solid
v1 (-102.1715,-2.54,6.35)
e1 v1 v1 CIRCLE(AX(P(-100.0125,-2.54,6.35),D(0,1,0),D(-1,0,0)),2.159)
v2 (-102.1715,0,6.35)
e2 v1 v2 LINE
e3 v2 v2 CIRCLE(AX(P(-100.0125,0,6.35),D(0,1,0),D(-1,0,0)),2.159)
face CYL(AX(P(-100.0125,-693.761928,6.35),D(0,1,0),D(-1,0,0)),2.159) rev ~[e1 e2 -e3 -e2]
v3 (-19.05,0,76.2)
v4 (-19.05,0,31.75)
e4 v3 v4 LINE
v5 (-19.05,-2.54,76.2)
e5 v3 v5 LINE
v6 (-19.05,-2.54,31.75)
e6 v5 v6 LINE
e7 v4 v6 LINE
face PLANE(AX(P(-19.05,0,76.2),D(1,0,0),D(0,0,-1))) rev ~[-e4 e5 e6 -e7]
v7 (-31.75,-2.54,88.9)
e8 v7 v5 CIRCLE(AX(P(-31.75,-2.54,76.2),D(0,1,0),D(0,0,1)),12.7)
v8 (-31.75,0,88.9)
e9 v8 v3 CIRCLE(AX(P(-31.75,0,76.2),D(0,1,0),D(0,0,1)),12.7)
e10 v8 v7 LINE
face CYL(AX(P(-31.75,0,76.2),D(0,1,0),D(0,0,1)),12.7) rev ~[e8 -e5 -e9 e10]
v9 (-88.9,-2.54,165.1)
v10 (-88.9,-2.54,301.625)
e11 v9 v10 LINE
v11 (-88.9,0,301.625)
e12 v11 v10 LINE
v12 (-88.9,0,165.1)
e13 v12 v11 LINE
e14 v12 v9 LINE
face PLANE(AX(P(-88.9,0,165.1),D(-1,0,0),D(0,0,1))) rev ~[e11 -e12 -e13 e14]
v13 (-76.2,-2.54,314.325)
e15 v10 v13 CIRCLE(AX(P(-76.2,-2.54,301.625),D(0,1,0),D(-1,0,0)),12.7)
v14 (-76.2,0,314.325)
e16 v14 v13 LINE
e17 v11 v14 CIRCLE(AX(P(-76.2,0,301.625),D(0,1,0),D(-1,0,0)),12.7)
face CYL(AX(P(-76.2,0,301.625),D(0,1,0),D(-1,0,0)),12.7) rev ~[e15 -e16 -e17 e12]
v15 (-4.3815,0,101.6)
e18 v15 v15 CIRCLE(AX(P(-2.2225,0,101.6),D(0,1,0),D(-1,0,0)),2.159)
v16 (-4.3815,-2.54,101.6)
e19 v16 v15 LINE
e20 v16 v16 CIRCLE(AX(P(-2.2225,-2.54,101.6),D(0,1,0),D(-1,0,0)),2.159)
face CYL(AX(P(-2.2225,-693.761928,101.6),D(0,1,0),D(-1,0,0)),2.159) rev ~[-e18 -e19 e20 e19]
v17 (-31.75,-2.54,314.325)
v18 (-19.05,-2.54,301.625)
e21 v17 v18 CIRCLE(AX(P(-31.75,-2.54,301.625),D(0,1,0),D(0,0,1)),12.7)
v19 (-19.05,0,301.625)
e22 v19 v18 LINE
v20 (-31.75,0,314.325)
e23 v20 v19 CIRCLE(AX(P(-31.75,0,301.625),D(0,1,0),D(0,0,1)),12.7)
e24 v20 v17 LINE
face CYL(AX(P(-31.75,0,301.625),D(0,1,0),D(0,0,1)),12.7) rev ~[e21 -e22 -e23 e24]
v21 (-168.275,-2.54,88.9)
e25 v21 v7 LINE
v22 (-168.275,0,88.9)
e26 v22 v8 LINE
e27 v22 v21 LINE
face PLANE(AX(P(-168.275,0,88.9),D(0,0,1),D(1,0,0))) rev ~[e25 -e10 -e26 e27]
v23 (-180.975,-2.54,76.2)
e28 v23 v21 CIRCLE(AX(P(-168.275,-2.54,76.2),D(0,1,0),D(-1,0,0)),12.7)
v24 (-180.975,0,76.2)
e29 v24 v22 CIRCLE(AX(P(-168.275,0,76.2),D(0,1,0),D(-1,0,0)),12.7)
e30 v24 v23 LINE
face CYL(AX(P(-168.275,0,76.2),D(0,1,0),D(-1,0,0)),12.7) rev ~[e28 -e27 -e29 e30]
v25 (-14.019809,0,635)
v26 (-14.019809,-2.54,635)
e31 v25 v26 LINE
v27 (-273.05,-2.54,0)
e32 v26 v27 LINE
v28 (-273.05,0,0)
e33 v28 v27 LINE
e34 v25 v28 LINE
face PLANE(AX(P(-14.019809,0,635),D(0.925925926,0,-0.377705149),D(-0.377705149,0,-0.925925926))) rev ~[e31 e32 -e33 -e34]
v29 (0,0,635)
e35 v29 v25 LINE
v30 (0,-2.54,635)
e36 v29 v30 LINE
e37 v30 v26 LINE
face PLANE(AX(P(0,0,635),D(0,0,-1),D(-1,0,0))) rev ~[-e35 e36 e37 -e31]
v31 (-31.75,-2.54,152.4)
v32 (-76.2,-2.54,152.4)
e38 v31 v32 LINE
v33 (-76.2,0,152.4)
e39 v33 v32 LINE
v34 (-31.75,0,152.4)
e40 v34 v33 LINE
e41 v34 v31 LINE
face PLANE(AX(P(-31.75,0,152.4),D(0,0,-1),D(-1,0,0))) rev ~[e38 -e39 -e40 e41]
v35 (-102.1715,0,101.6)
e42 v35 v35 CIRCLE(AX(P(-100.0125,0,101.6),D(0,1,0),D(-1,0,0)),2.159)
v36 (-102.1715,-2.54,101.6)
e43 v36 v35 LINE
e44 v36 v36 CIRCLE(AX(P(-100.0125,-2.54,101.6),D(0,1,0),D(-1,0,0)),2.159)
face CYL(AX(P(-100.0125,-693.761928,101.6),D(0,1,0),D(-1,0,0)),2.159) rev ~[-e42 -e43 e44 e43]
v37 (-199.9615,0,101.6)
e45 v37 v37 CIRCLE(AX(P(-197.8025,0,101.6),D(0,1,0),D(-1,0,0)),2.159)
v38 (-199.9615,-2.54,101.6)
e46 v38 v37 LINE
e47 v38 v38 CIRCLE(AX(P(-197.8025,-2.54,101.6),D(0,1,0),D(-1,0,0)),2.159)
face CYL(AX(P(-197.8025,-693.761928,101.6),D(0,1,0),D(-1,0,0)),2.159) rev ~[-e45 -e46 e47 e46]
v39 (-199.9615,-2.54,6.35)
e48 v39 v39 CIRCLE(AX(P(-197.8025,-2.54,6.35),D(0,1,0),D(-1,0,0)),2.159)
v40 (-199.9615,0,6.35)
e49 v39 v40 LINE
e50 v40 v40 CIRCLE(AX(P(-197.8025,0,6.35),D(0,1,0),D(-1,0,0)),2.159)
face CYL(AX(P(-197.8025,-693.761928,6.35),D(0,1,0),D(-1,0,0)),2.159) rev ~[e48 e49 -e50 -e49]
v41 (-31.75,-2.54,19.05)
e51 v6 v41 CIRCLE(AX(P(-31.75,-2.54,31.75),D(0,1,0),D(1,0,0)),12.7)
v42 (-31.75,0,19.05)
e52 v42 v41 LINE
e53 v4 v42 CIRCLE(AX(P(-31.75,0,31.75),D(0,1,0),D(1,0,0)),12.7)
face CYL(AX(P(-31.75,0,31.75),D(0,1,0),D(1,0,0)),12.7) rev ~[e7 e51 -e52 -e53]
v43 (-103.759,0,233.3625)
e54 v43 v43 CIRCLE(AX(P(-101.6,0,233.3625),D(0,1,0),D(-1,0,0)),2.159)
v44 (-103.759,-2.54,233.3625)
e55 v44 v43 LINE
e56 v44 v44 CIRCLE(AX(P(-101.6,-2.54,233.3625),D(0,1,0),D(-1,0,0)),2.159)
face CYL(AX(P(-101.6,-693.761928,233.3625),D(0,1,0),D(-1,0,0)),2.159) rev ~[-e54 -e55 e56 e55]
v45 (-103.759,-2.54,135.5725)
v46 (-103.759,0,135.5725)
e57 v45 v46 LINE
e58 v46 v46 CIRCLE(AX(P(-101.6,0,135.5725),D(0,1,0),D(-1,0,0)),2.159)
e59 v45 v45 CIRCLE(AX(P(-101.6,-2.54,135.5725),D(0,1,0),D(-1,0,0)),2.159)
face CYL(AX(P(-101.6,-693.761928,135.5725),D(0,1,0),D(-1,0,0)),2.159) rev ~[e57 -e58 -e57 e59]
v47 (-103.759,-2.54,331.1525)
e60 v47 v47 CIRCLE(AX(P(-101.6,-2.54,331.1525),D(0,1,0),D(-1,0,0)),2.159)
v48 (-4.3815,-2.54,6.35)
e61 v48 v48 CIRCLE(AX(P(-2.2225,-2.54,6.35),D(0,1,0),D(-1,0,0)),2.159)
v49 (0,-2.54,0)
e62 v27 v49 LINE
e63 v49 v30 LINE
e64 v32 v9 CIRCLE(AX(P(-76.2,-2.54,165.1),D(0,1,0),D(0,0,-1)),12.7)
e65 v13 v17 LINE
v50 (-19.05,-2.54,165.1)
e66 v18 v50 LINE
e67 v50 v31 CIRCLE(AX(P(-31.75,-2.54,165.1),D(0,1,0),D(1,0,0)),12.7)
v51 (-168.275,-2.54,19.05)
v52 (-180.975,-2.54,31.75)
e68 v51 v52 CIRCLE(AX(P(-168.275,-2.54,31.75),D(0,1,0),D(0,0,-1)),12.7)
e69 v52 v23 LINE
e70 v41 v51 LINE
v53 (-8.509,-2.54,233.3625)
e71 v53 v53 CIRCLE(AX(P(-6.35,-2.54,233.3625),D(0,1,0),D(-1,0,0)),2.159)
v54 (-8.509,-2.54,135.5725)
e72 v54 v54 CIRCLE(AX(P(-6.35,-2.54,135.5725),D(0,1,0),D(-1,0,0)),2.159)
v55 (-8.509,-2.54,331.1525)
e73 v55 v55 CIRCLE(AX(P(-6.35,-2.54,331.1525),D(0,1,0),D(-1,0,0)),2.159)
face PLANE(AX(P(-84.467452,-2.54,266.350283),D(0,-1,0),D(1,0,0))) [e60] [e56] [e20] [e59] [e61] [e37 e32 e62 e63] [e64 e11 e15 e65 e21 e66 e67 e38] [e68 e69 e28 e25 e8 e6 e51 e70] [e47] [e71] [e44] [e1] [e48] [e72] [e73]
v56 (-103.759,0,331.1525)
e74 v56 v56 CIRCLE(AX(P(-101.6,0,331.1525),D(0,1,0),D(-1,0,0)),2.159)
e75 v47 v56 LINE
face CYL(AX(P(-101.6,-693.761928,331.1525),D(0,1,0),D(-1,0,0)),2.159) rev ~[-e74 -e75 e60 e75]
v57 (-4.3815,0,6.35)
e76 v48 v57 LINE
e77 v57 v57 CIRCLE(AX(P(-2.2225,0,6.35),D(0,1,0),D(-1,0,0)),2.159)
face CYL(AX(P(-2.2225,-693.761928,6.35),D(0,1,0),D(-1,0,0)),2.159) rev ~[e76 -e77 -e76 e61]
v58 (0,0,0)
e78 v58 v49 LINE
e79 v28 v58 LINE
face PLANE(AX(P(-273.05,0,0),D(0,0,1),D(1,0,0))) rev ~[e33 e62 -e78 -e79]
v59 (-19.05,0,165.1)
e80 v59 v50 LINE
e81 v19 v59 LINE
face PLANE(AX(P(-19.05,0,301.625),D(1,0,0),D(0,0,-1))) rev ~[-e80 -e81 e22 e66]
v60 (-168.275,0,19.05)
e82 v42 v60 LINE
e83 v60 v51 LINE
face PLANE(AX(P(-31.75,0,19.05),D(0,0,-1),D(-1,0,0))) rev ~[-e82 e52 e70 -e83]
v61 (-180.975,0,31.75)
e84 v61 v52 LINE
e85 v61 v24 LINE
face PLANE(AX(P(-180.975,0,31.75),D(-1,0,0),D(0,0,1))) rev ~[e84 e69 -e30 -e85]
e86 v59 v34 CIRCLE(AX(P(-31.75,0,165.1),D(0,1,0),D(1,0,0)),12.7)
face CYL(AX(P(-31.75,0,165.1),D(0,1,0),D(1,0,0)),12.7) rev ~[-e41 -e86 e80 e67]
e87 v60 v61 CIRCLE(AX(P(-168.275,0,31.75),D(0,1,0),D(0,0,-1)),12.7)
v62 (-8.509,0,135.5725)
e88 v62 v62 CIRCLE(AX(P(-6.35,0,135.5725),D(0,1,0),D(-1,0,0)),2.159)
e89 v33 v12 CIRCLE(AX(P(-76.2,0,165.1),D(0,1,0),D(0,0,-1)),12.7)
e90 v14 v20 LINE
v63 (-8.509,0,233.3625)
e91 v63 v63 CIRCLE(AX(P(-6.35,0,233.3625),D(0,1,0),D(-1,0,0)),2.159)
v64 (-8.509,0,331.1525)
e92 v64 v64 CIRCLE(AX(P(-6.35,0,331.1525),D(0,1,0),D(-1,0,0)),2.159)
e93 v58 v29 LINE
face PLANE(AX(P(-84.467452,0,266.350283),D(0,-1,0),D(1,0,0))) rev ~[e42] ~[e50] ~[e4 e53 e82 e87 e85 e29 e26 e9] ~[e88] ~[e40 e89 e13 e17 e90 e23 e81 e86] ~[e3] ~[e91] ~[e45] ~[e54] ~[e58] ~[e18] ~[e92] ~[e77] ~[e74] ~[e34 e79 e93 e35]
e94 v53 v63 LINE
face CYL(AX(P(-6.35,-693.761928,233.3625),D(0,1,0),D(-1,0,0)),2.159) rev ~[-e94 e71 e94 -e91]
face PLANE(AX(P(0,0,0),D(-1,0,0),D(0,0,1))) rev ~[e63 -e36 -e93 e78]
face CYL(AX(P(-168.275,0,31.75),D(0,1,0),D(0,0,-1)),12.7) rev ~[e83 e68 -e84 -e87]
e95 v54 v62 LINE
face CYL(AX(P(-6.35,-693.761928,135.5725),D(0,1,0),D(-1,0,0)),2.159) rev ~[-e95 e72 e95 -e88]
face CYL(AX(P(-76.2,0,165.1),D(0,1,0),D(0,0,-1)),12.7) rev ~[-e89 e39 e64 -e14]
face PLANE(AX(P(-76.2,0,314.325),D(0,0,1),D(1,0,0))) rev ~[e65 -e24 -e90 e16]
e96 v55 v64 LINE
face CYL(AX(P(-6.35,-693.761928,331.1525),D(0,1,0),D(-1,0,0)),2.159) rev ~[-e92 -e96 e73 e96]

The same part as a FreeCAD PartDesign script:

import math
import FreeCAD as App
import Part
import Sketcher
Q = App.Units.Quantity


def add_polygon(sketch, points):
    """Adds a closed chain of lines whose ends are joined by coincident constraints."""
    first, n = sketch.GeometryCount, len(points)
    for a, b in zip(points, points[1:] + points[:1]):
        sketch.addGeometry(Part.LineSegment(App.Vector(*a, 0), App.Vector(*b, 0)), False)
    for i in range(n):
        sketch.addConstraint(Sketcher.Constraint("Coincident", first + i, 2, first + (i + 1) % n, 1))

doc = App.newDocument("Part")
params = doc.addObject("Spreadsheet::Sheet", "Params")
for row, (alias, value) in enumerate([
    ("sketch1_radius", "0.5 in"),
    ("sketch1_height", "25 in"),
    ("sketch1_length", "27 in"),
    ("sketch1_width", "10.75 in"),
    ("sketch1_width2", "1.75 in"),
    ("pad1_length", "0.1 in"),
    ("sketch2_diameter", "0.17 in"),
    ("hole_diameter", "0.17 in"),
], start=1):
    params.set(f"A{row}", alias)
    params.set(f"B{row}", "=" + value)
    params.setAlias(f"B{row}", alias)

body = doc.addObject("PartDesign::Body", "Body")

sketch1 = doc.addObject("Sketcher::SketchObject", "Sketch")
body.addObject(sketch1)
sketch1.AttachmentSupport = (doc.XZ_Plane, [""])
sketch1.MapMode = "FlatFace"
add_polygon(sketch1, [(-273, 0), (0, 0), (0, 635), (-14, 635)])
sketch1.addGeometry(Part.LineSegment(App.Vector(-32, 19, 0), App.Vector(-168, 19, 0)), False)
sketch1.addGeometry(Part.ArcOfCircle(Part.Circle(App.Vector(-168, 32, 0), App.Vector(0, 0, 1), 13), math.radians(180), math.radians(270)), False)
sketch1.addGeometry(Part.LineSegment(App.Vector(-181, 32, 0), App.Vector(-181, 76, 0)), False)
sketch1.addGeometry(Part.ArcOfCircle(Part.Circle(App.Vector(-168, 76, 0), App.Vector(0, 0, 1), 13), math.radians(90), math.radians(180)), False)
sketch1.addGeometry(Part.LineSegment(App.Vector(-168, 89, 0), App.Vector(-32, 89, 0)), False)
sketch1.addGeometry(Part.ArcOfCircle(Part.Circle(App.Vector(-32, 76, 0), App.Vector(0, 0, 1), 13), math.radians(0), math.radians(90)), False)
sketch1.addGeometry(Part.LineSegment(App.Vector(-19, 76, 0), App.Vector(-19, 32, 0)), False)
sketch1.addGeometry(Part.ArcOfCircle(Part.Circle(App.Vector(-32, 32, 0), App.Vector(0, 0, 1), 13), math.radians(-90), math.radians(0)), False)
sketch1.addGeometry(Part.LineSegment(App.Vector(-32, 152, 0), App.Vector(-76, 152, 0)), False)
sketch1.addGeometry(Part.ArcOfCircle(Part.Circle(App.Vector(-76, 165, 0), App.Vector(0, 0, 1), 13), math.radians(180), math.radians(270)), False)
sketch1.addGeometry(Part.LineSegment(App.Vector(-89, 165, 0), App.Vector(-89, 302, 0)), False)
sketch1.addGeometry(Part.ArcOfCircle(Part.Circle(App.Vector(-76, 302, 0), App.Vector(0, 0, 1), 13), math.radians(90), math.radians(180)), False)
sketch1.addGeometry(Part.LineSegment(App.Vector(-76, 314, 0), App.Vector(-32, 314, 0)), False)
sketch1.addGeometry(Part.ArcOfCircle(Part.Circle(App.Vector(-32, 302, 0), App.Vector(0, 0, 1), 13), math.radians(0), math.radians(90)), False)
sketch1.addGeometry(Part.LineSegment(App.Vector(-19, 302, 0), App.Vector(-19, 165, 0)), False)
sketch1.addGeometry(Part.ArcOfCircle(Part.Circle(App.Vector(-32, 165, 0), App.Vector(0, 0, 1), 13), math.radians(-90), math.radians(0)), False)
sketch1.addConstraint([
    Sketcher.Constraint("Tangent", 4, 2, 5, 2),
    Sketcher.Constraint("Tangent", 5, 1, 6, 1),
    Sketcher.Constraint("Tangent", 6, 2, 7, 2),
    Sketcher.Constraint("Tangent", 7, 1, 8, 1),
    Sketcher.Constraint("Tangent", 8, 2, 9, 2),
    Sketcher.Constraint("Tangent", 9, 1, 10, 1),
    Sketcher.Constraint("Tangent", 10, 2, 11, 2),
    Sketcher.Constraint("Tangent", 11, 1, 4, 1),
    Sketcher.Constraint("Tangent", 12, 2, 13, 2),
    Sketcher.Constraint("Tangent", 13, 1, 14, 1),
    Sketcher.Constraint("Tangent", 14, 2, 15, 2),
    Sketcher.Constraint("Tangent", 15, 1, 16, 1),
    Sketcher.Constraint("Tangent", 16, 2, 17, 2),
    Sketcher.Constraint("Tangent", 17, 1, 18, 1),
    Sketcher.Constraint("Tangent", 18, 2, 19, 2),
    Sketcher.Constraint("Tangent", 19, 1, 12, 1),
    Sketcher.Constraint("Horizontal", 0),
    Sketcher.Constraint("Vertical", 1),
    Sketcher.Constraint("Horizontal", 2),
    Sketcher.Constraint("Horizontal", 4),
    Sketcher.Constraint("Vertical", 6),
    Sketcher.Constraint("Horizontal", 8),
    Sketcher.Constraint("Vertical", 10),
    Sketcher.Constraint("Horizontal", 12),
    Sketcher.Constraint("Vertical", 14),
    Sketcher.Constraint("Horizontal", 16),
    Sketcher.Constraint("Vertical", 18),
    Sketcher.Constraint("Coincident", 0, 2, -1, 1),
    Sketcher.Constraint("Equal", 5, 7),
    Sketcher.Constraint("Equal", 7, 9),
    Sketcher.Constraint("Equal", 9, 11),
    Sketcher.Constraint("Equal", 11, 13),
    Sketcher.Constraint("Equal", 13, 15),
    Sketcher.Constraint("Equal", 15, 17),
    Sketcher.Constraint("Equal", 17, 19),
    Sketcher.Constraint("Vertical", 11, 3, 17, 3),
    Sketcher.Constraint("Equal", 16, 6),
    Sketcher.Constraint("Equal", 8, 14),
    Sketcher.Constraint("Radius", 5, Q("0.5 in")),
    Sketcher.Constraint("DistanceY", 1, 1, 1, 2, Q("25 in")),
    Sketcher.Constraint("Distance", 3, Q("27 in")),
    Sketcher.Constraint("DistanceY", -1, 1, 7, 3, Q("3 in")),
    Sketcher.Constraint("DistanceX", 13, 3, -1, 1, Q("3 in")),
    Sketcher.Constraint("DistanceY", -1, 1, 12, 2, Q("6 in")),
    Sketcher.Constraint("DistanceX", 0, 1, 0, 2, Q("10.75 in")),
    Sketcher.Constraint("DistanceX", 12, 2, 12, 1, Q("1.75 in")),
    Sketcher.Constraint("DistanceX", 4, 2, 4, 1, Q("5.375 in")),
])
sketch1.setExpression("Constraints[42]", "Params.sketch1_radius")
sketch1.setExpression("Constraints[43]", "Params.sketch1_height")
sketch1.setExpression("Constraints[44]", "Params.sketch1_length")
sketch1.setExpression("Constraints[48]", "Params.sketch1_width")
sketch1.setExpression("Constraints[49]", "Params.sketch1_width2")
pad1 = doc.addObject("PartDesign::Pad", "Pad")
body.addObject(pad1)
pad1.Profile = sketch1
pad1.setExpression("Length", "Params.pad1_length")

sketch2 = doc.addObject("Sketcher::SketchObject", "Sketch001")
body.addObject(sketch2)
sketch2.AttachmentSupport = (doc.XZ_Plane, [""])
sketch2.MapMode = "FlatFace"
sketch2.AttachmentOffset = App.Placement(App.Vector(0, 0, 0.1 * 25.4), App.Rotation())
sketch2.addGeometry([
    Part.Circle(App.Vector(-101.6, 331.2, 0), App.Vector(0, 0, 1), 2.2),
    Part.Circle(App.Vector(-6.3, 331.2, 0), App.Vector(0, 0, 1), 2.2),
    Part.Circle(App.Vector(-6.3, 233.4, 0), App.Vector(0, 0, 1), 2.2),
    Part.Circle(App.Vector(-101.6, 233.4, 0), App.Vector(0, 0, 1), 2.2),
    Part.Circle(App.Vector(-101.6, 135.6, 0), App.Vector(0, 0, 1), 2.2),
    Part.Circle(App.Vector(-6.3, 135.6, 0), App.Vector(0, 0, 1), 2.2),
    Part.Circle(App.Vector(-197.8, 101.6, 0), App.Vector(0, 0, 1), 2.2),
    Part.Circle(App.Vector(-197.8, 6.3, 0), App.Vector(0, 0, 1), 2.2),
    Part.Circle(App.Vector(-100, 6.3, 0), App.Vector(0, 0, 1), 2.2),
    Part.Circle(App.Vector(-100, 101.6, 0), App.Vector(0, 0, 1), 2.2),
    Part.Circle(App.Vector(-2.2, 101.6, 0), App.Vector(0, 0, 1), 2.2),
    Part.Circle(App.Vector(-2.2, 6.3, 0), App.Vector(0, 0, 1), 2.2),
], False)
sketch2.addConstraint([
    Sketcher.Constraint("Equal", 0, 1),
    Sketcher.Constraint("Equal", 1, 2),
    Sketcher.Constraint("Equal", 2, 3),
    Sketcher.Constraint("Equal", 3, 4),
    Sketcher.Constraint("Equal", 4, 5),
    Sketcher.Constraint("Equal", 5, 6),
    Sketcher.Constraint("Equal", 6, 7),
    Sketcher.Constraint("Equal", 7, 8),
    Sketcher.Constraint("Equal", 8, 9),
    Sketcher.Constraint("Equal", 9, 10),
    Sketcher.Constraint("Equal", 10, 11),
    Sketcher.Constraint("Horizontal", 0, 3, 1, 3),
    Sketcher.Constraint("Horizontal", 2, 3, 3, 3),
    Sketcher.Constraint("Horizontal", 4, 3, 5, 3),
    Sketcher.Constraint("Horizontal", 7, 3, 8, 3),
    Sketcher.Constraint("Horizontal", 6, 3, 9, 3),
    Sketcher.Constraint("Horizontal", 9, 3, 10, 3),
    Sketcher.Constraint("Horizontal", 8, 3, 11, 3),
    Sketcher.Constraint("Vertical", 1, 3, 2, 3),
    Sketcher.Constraint("Vertical", 0, 3, 3, 3),
    Sketcher.Constraint("Vertical", 3, 3, 4, 3),
    Sketcher.Constraint("Vertical", 2, 3, 5, 3),
    Sketcher.Constraint("Vertical", 6, 3, 7, 3),
    Sketcher.Constraint("Vertical", 8, 3, 9, 3),
    Sketcher.Constraint("Vertical", 10, 3, 11, 3),
    Sketcher.Constraint("Diameter", 0, Q("0.17 in")),
    Sketcher.Constraint("DistanceX", 0, 3, -1, 1, Q("4 in")),
    Sketcher.Constraint("DistanceY", -1, 1, 6, 3, Q("4 in")),
    Sketcher.Constraint("DistanceY", 4, 3, 0, 3, Q("7.7 in")),
    Sketcher.Constraint("DistanceX", 1, 3, -1, 1, Q("0.25 in")),
    Sketcher.Constraint("DistanceY", -1, 1, 7, 3, Q("0.25 in")),
    Sketcher.Constraint("DistanceY", 2, 3, 1, 3, Q("3.85 in")),
    Sketcher.Constraint("DistanceX", 7, 3, 8, 3, Q("3.85 in")),
    Sketcher.Constraint("DistanceX", 9, 3, 10, 3, Q("3.85 in")),
    Sketcher.Constraint("DistanceY", -1, 1, 2, 3, Q("9.1875 in")),
    Sketcher.Constraint("DistanceX", 8, 3, -1, 1, Q("3.9375 in")),
])
sketch2.setExpression("Constraints[25]", "Params.sketch2_diameter")
doc.recompute()
hole = doc.addObject("PartDesign::Hole", "Hole")
body.addObject(hole)
hole.Profile = sketch2
hole.ThreadType = "None"
hole.setExpression("Diameter", "Params.hole_diameter")
hole.DepthType = "ThroughAll"

doc.recompute()
